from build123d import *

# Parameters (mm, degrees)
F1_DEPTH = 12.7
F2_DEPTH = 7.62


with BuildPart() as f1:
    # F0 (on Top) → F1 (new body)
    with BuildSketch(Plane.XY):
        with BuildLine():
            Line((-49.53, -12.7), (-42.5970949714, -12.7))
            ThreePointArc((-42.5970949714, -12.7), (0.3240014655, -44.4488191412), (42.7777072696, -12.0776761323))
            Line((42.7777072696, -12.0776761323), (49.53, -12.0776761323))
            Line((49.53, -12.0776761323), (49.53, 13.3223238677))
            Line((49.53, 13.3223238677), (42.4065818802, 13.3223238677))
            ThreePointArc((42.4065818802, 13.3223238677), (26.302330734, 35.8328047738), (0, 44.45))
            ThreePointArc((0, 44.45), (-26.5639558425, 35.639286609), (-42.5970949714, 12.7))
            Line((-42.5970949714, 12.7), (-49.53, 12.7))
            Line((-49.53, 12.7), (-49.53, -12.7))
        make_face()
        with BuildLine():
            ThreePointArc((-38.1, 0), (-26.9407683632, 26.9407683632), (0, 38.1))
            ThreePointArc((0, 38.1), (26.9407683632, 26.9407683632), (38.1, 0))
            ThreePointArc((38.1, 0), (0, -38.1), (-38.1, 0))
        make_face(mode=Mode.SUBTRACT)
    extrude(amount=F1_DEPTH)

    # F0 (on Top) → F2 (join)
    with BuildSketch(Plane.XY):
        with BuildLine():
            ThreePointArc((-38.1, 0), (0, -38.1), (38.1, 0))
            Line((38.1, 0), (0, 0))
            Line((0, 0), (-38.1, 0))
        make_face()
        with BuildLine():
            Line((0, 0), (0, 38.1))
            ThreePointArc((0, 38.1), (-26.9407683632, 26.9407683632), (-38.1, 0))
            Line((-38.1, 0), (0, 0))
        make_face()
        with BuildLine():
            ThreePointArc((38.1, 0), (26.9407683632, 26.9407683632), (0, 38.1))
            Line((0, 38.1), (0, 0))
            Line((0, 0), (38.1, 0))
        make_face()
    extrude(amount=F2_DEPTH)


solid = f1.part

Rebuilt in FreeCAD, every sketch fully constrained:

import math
import FreeCAD as App
import Part
import Sketcher
Q = App.Units.Quantity

doc = App.newDocument("Part")
body = doc.addObject("PartDesign::Body", "Body")

# Sketch on XY plane
sketch1 = body.newObject("Sketcher::SketchObject", "Sketch")
sketch1.AttachmentSupport = (doc.getObject("XY_Plane"), [""])
sketch1.MapMode = "FlatFace"
sketch1.addGeometry(Part.LineSegment(App.Vector(-50, -13, 0), App.Vector(-43, -13, 0)), False)
sketch1.addGeometry(Part.ArcOfCircle(Part.Circle(App.Vector(0, 0, 0), App.Vector(0, 0, 1), 44), math.radians(-163), math.radians(-16)), False)
sketch1.addGeometry(Part.LineSegment(App.Vector(43, -12, 0), App.Vector(50, -12, 0)), False)
sketch1.addGeometry(Part.LineSegment(App.Vector(50, -12, 0), App.Vector(50, 13, 0)), False)
sketch1.addGeometry(Part.LineSegment(App.Vector(50, 13, 0), App.Vector(42, 13, 0)), False)
sketch1.addGeometry(Part.ArcOfCircle(Part.Circle(App.Vector(0, 0, 0), App.Vector(0, 0, 1), 44), math.radians(17), math.radians(90)), False)
sketch1.addGeometry(Part.ArcOfCircle(Part.Circle(App.Vector(0, 0, 0), App.Vector(0, 0, 1), 44), math.radians(90), math.radians(163)), False)
sketch1.addGeometry(Part.LineSegment(App.Vector(-43, 13, 0), App.Vector(-50, 13, 0)), False)
sketch1.addGeometry(Part.LineSegment(App.Vector(-50, 13, 0), App.Vector(-50, -13, 0)), False)
sketch1.addGeometry(Part.Circle(App.Vector(0, 0, 0), App.Vector(0, 0, 1), 38), False)
sketch1.addConstraint(Sketcher.Constraint("Coincident", 0, 2, 1, 1))
sketch1.addConstraint(Sketcher.Constraint("Coincident", 1, 2, 2, 1))
sketch1.addConstraint(Sketcher.Constraint("Coincident", 2, 2, 3, 1))
sketch1.addConstraint(Sketcher.Constraint("Coincident", 3, 2, 4, 1))
sketch1.addConstraint(Sketcher.Constraint("Coincident", 4, 2, 5, 1))
sketch1.addConstraint(Sketcher.Constraint("Tangent", 5, 2, 6, 1))
sketch1.addConstraint(Sketcher.Constraint("Coincident", 6, 2, 7, 1))
sketch1.addConstraint(Sketcher.Constraint("Coincident", 7, 2, 8, 1))
sketch1.addConstraint(Sketcher.Constraint("Coincident", 8, 2, 0, 1))
sketch1.addConstraint(Sketcher.Constraint("Horizontal", 0))
sketch1.addConstraint(Sketcher.Constraint("Horizontal", 2))
sketch1.addConstraint(Sketcher.Constraint("Vertical", 3))
sketch1.addConstraint(Sketcher.Constraint("Horizontal", 4))
sketch1.addConstraint(Sketcher.Constraint("Horizontal", 7))
sketch1.addConstraint(Sketcher.Constraint("Vertical", 8))
sketch1.addConstraint(Sketcher.Constraint("Coincident", 1, 3, -1, 1))
sketch1.addConstraint(Sketcher.Constraint("Coincident", 5, 3, -1, 1))
sketch1.addConstraint(Sketcher.Constraint("Coincident", 9, 3, -1, 1))
sketch1.addConstraint(Sketcher.Constraint("Equal", 1, 5))
sketch1.addConstraint(Sketcher.Constraint("Equal", 5, 6))
sketch1.addConstraint(Sketcher.Constraint("PointOnObject", 5, 2, -2))
sketch1.addConstraint(Sketcher.Constraint("Vertical", 0, 2, 6, 2))
sketch1.addConstraint(Sketcher.Constraint("Equal", 3, 8))
sketch1.addConstraint(Sketcher.Constraint("Diameter", 9, Q("3 in")))
sketch1.addConstraint(Sketcher.Constraint("DistanceY", 3, 1, 3, 2, Q("1 in")))
sketch1.addConstraint(Sketcher.Constraint("Radius", 1, Q("1.75 in")))
sketch1.addConstraint(Sketcher.Constraint("DistanceX", -1, 1, 2, 2, Q("1.95 in")))
sketch1.addConstraint(Sketcher.Constraint("DistanceX", 7, 2, -1, 1, Q("1.95 in")))
sketch1.addConstraint(Sketcher.Constraint("DistanceX", 4, 2, 4, 1, 7.123418))
pad1 = body.newObject("PartDesign::Pad", "Pad")
pad1.Profile = sketch1
pad1.Length = Q("0.5 in")

# Sketch on XY plane
sketch2 = body.newObject("Sketcher::SketchObject", "Sketch001")
sketch2.AttachmentSupport = (doc.getObject("XY_Plane"), [""])
sketch2.MapMode = "FlatFace"
sketch2.addGeometry(Part.Circle(App.Vector(0, 0, 0), App.Vector(0, 0, 1), 38), False)
sketch2.addConstraint(Sketcher.Constraint("Coincident", 0, 3, -1, 1))
sketch2.addConstraint(Sketcher.Constraint("Diameter", 0, Q("3 in")))
pad2 = body.newObject("PartDesign::Pad", "Pad001")
pad2.Profile = sketch2
pad2.Length = Q("0.3 in")

doc.recompute()
